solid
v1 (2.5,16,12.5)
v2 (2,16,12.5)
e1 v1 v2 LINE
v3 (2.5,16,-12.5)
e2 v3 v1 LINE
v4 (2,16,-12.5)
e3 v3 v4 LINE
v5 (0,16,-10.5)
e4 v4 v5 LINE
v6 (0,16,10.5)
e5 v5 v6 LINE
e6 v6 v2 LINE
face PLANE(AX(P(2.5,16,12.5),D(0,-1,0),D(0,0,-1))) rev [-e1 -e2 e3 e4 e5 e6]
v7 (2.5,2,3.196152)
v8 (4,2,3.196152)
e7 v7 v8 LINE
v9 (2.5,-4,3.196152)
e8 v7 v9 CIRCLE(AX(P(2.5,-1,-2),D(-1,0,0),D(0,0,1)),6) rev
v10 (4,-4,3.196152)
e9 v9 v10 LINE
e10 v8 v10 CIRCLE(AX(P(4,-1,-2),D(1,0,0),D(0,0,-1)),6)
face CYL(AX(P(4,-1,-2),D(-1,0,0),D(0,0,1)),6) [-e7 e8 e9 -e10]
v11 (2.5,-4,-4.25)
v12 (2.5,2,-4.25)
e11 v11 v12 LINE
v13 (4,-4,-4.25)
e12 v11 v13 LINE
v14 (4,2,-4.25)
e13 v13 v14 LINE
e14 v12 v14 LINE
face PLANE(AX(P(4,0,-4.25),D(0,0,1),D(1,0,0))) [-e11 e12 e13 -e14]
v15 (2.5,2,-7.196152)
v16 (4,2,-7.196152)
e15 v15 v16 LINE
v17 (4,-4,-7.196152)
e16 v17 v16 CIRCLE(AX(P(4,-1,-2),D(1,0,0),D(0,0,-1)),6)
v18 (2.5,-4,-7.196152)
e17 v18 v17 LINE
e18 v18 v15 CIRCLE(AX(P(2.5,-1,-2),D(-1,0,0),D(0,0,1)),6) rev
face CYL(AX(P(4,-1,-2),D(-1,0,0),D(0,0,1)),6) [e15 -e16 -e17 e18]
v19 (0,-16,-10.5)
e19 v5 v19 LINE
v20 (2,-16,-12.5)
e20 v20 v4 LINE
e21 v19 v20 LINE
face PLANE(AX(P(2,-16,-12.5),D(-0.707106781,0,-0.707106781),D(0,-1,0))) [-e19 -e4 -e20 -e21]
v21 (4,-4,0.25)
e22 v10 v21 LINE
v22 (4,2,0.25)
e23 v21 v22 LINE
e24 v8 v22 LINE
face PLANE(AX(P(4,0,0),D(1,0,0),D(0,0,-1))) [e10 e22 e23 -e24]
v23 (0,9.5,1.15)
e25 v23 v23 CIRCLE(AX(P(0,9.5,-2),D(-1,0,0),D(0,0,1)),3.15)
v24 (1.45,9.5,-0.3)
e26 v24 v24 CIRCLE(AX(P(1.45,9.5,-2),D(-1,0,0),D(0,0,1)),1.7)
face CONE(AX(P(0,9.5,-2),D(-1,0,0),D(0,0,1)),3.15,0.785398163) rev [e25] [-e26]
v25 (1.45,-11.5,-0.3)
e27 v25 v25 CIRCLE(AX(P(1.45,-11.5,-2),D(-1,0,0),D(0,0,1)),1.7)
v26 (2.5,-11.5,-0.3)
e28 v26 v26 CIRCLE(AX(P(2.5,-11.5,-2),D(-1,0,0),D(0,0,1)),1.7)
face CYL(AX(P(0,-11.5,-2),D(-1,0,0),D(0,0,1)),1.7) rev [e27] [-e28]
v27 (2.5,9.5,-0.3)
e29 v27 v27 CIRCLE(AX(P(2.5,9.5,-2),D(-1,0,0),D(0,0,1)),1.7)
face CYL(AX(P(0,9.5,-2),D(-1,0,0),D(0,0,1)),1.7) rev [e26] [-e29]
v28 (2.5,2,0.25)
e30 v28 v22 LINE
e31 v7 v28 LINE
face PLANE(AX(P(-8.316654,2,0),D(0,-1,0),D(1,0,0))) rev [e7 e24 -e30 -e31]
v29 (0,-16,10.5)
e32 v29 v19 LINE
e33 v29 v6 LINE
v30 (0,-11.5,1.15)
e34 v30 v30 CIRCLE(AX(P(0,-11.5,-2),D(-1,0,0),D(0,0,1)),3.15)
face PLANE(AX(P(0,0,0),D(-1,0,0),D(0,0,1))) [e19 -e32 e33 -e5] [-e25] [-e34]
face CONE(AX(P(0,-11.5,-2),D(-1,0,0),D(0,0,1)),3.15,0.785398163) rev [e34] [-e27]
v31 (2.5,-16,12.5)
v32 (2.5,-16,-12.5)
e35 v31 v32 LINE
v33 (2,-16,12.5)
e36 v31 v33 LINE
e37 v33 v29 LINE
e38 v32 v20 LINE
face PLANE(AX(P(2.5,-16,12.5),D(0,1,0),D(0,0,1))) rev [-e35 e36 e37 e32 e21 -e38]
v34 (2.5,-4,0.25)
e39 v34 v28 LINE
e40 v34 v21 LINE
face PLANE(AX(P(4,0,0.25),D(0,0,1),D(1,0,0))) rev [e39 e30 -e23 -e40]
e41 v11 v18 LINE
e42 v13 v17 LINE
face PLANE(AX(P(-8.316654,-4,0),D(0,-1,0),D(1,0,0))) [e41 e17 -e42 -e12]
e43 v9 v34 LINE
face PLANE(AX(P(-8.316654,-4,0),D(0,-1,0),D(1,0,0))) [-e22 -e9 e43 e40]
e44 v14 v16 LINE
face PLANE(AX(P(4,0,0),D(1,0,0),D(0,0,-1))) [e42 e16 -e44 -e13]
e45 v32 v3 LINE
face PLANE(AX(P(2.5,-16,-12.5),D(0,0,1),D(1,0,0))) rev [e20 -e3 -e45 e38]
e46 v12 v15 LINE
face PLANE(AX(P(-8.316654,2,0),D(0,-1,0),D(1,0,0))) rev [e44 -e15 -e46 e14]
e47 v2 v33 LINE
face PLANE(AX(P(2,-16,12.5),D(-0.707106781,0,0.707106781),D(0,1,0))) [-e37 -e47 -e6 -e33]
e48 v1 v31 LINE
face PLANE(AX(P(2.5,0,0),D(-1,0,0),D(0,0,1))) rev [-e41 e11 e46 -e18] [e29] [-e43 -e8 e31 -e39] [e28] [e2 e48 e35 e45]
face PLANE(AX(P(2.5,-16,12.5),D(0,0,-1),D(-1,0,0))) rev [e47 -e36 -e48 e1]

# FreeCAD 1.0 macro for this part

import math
import FreeCAD as App
import Part
import Sketcher
Q = App.Units.Quantity


def edges_at(feature, points):
    """Names of the edges that pass closest to the given points."""
    edges = feature.Shape.Edges
    near = lambda p: min(range(len(edges)), key=lambda i: edges[i].distToShape(Part.Vertex(*p))[0])
    return sorted({f"Edge{near(p) + 1}" for p in points})


def add_polygon(sketch, points):
    """Adds a closed chain of lines whose ends are joined by coincident constraints."""
    first, n = sketch.GeometryCount, len(points)
    for a, b in zip(points, points[1:] + points[:1]):
        sketch.addGeometry(Part.LineSegment(App.Vector(*a, 0), App.Vector(*b, 0)), False)
    for i in range(n):
        sketch.addConstraint(Sketcher.Constraint("Coincident", first + i, 2, first + (i + 1) % n, 1))

doc = App.newDocument("Part")
body = doc.addObject("PartDesign::Body", "Body")

# Sketch on YZ plane
sketch1 = doc.addObject("Sketcher::SketchObject", "Sketch")
body.addObject(sketch1)
sketch1.AttachmentSupport = (doc.YZ_Plane, [""])
sketch1.MapMode = "FlatFace"
add_polygon(sketch1, [(16, 12), (-16, 12), (-16, -12), (16, -12)])  # lines 0-3
sketch1.addConstraint(Sketcher.Constraint("Horizontal", 0))
sketch1.addConstraint(Sketcher.Constraint("Vertical", 1))
sketch1.addConstraint(Sketcher.Constraint("Horizontal", 2))
sketch1.addConstraint(Sketcher.Constraint("Vertical", 3))
sketch1.addConstraint(Sketcher.Constraint("Symmetric", 0, 2, 2, 2, -1, 1))
sketch1.addConstraint(Sketcher.Constraint("DistanceX", 0, 2, 0, 1, Q("32 mm")))
sketch1.addConstraint(Sketcher.Constraint("DistanceY", 1, 2, 1, 1, Q("25 mm")))
pad1 = doc.addObject("PartDesign::Pad", "Pad")
body.addObject(pad1)
pad1.Profile = sketch1
pad1.Length = 2.5
doc.recompute()

chamfer = doc.addObject("PartDesign::Chamfer", "Chamfer")
body.addObject(chamfer)
chamfer.Base = (pad1, edges_at(pad1, [(0, 0, 12.5), (0, 0, -12.5)]))
chamfer.Size = 2

# Sketch on XZ plane
sketch2 = doc.addObject("Sketcher::SketchObject", "Sketch001")
body.addObject(sketch2)
sketch2.AttachmentSupport = (doc.XZ_Plane, [""])
sketch2.MapMode = "FlatFace"
sketch2.AttachmentOffset = App.Placement(App.Vector(0, 0, 11.5), App.Rotation())
add_polygon(sketch2, [(2.5, -2), (0, -2), (0, 1.1), (1.4, -0.3), (2.5, -0.3)])  # lines 0-4
sketch2.addGeometry(Part.LineSegment(App.Vector(0, -2, 0), App.Vector(2.5, -2, 0)), True)  # axis
sketch2.addConstraint(Sketcher.Constraint("Horizontal", 0))
sketch2.addConstraint(Sketcher.Constraint("Vertical", 1))
sketch2.addConstraint(Sketcher.Constraint("Horizontal", 3))
sketch2.addConstraint(Sketcher.Constraint("Vertical", 4))
sketch2.addConstraint(Sketcher.Constraint("Horizontal", 5))
sketch2.addConstraint(Sketcher.Constraint("Coincident", 5, 1, 0, 2))
sketch2.addConstraint(Sketcher.Constraint("PointOnObject", 0, 2, -2))
sketch2.addConstraint(Sketcher.Constraint("Vertical", 3, 2, 5, 2))
sketch2.addConstraint(Sketcher.Constraint("Angle", 2, Q("-45 deg")))
sketch2.addConstraint(Sketcher.Constraint("DistanceX", 0, 2, 0, 1, Q("2.5 mm")))
sketch2.addConstraint(Sketcher.Constraint("DistanceY", 4, 2, 4, 1, Q("1.7 mm")))
sketch2.addConstraint(Sketcher.Constraint("DistanceY", 0, 2, -1, 1, Q("2 mm")))
sketch2.addConstraint(Sketcher.Constraint("DistanceX", 3, 1, 3, 2, Q("1.05 mm")))
groove = doc.addObject("PartDesign::Groove", "Groove")
body.addObject(groove)
groove.Profile = sketch2
groove.ReferenceAxis = (sketch2, ["Axis0"])
groove.Angle = 360
doc.recompute()

linearpattern = doc.addObject("PartDesign::LinearPattern", "LinearPattern")
body.addObject(linearpattern)
linearpattern.Originals = [groove]
linearpattern.Direction = (doc.Y_Axis, [""])
linearpattern.Mode = "offset"
linearpattern.Offset = 21
linearpattern.Occurrences = 2
body.Tip = linearpattern

# Sketch on YZ plane
sketch3 = doc.addObject("Sketcher::SketchObject", "Sketch002")
body.addObject(sketch3)
sketch3.AttachmentSupport = (doc.YZ_Plane, [""])
sketch3.MapMode = "FlatFace"
sketch3.AttachmentOffset = App.Placement(App.Vector(0, 0, 2.5), App.Rotation())
sketch3.addGeometry(Part.Circle(App.Vector(-1, -2, 0), App.Vector(0, 0, 1), 6), False)
sketch3.addGeometry(Part.ArcOfCircle(Part.Circle(App.Vector(-1, -2, 0), App.Vector(0, 0, 1), 3.5), math.radians(-40), math.radians(40)), False)
sketch3.addGeometry(Part.LineSegment(App.Vector(1.7, -4.2, 0), App.Vector(-3.7, -4.2, 0)), False)
sketch3.addGeometry(Part.ArcOfCircle(Part.Circle(App.Vector(-1, -2, 0), App.Vector(0, 0, 1), 3.5), math.radians(140), math.radians(220)), False)
sketch3.addGeometry(Part.LineSegment(App.Vector(-3.7, 0.2, 0), App.Vector(1.7, 0.2, 0)), False)
sketch3.addConstraint(Sketcher.Constraint("Coincident", 1, 1, 2, 1))
sketch3.addConstraint(Sketcher.Constraint("Coincident", 2, 2, 3, 2))
sketch3.addConstraint(Sketcher.Constraint("Coincident", 3, 1, 4, 1))
sketch3.addConstraint(Sketcher.Constraint("Coincident", 4, 2, 1, 2))
sketch3.addConstraint(Sketcher.Constraint("Horizontal", 2))
sketch3.addConstraint(Sketcher.Constraint("Horizontal", 4))
sketch3.addConstraint(Sketcher.Constraint("Coincident", 1, 3, 0, 3))
sketch3.addConstraint(Sketcher.Constraint("Coincident", 3, 3, 0, 3))
sketch3.addConstraint(Sketcher.Constraint("Equal", 1, 3))
sketch3.addConstraint(Sketcher.Constraint("Vertical", 2, 2, 3, 1))
sketch3.addConstraint(Sketcher.Constraint("Diameter", 0, Q("12 mm")))
sketch3.addConstraint(Sketcher.Constraint("Radius", 1, Q("3.5 mm")))
sketch3.addConstraint(Sketcher.Constraint("DistanceX", 0, 3, -1, 1, Q("1 mm")))
sketch3.addConstraint(Sketcher.Constraint("DistanceY", 0, 3, -1, 1, Q("2 mm")))
sketch3.addConstraint(Sketcher.Constraint("DistanceY", 2, 2, 3, 1, Q("4.5 mm")))
pad2 = doc.addObject("PartDesign::Pad", "Pad001")
body.addObject(pad2)
pad2.Profile = sketch3
pad2.Length = 1.5

# Sketch on YZ plane
sketch4 = doc.addObject("Sketcher::SketchObject", "Sketch003")
body.addObject(sketch4)
sketch4.AttachmentSupport = (doc.YZ_Plane, [""])
sketch4.MapMode = "FlatFace"
sketch4.AttachmentOffset = App.Placement(App.Vector(0, 0, 4), App.Rotation())
add_polygon(sketch4, [(7, 0.2), (-9, 0.2), (-9, -4.2), (7, -4.2)])  # lines 0-3
sketch4.addConstraint(Sketcher.Constraint("Horizontal", 0))
sketch4.addConstraint(Sketcher.Constraint("Vertical", 1))
sketch4.addConstraint(Sketcher.Constraint("Horizontal", 2))
sketch4.addConstraint(Sketcher.Constraint("Vertical", 3))
sketch4.addConstraint(Sketcher.Constraint("DistanceX", 0, 2, 0, 1, Q("16 mm")))
sketch4.addConstraint(Sketcher.Constraint("DistanceY", 1, 2, 1, 1, Q("4.5 mm")))
sketch4.addConstraint(Sketcher.Constraint("DistanceX", 0, 2, -1, 1, Q("9 mm")))
sketch4.addConstraint(Sketcher.Constraint("DistanceY", -1, 1, 0, 2, Q("0.25 mm")))
pocket1 = doc.addObject("PartDesign::Pocket", "Pocket")
body.addObject(pocket1)
pocket1.Profile = sketch4
pocket1.Length = 1.5

# Sketch on YZ plane
sketch5 = doc.addObject("Sketcher::SketchObject", "Sketch004")
body.addObject(sketch5)
sketch5.AttachmentSupport = (doc.YZ_Plane, [""])
sketch5.MapMode = "FlatFace"
sketch5.AttachmentOffset = App.Placement(App.Vector(0, 0, 4), App.Rotation())
sketch5.addGeometry(Part.LineSegment(App.Vector(2, 3.2, 0), App.Vector(2, -7.2, 0)), False)
sketch5.addGeometry(Part.ArcOfCircle(Part.Circle(App.Vector(-1, -2, 0), App.Vector(0, 0, 1), 6), math.radians(-60), math.radians(-22)), False)
sketch5.addGeometry(Part.ArcOfCircle(Part.Circle(App.Vector(-1, -2, 0), App.Vector(0, 0, 1), 6), math.radians(-22), math.radians(60)), False)
sketch5.addGeometry(Part.ArcOfCircle(Part.Circle(App.Vector(-1, -2, 0), App.Vector(0, 0, 1), 6), math.radians(120), math.radians(202)), False)
sketch5.addGeometry(Part.ArcOfCircle(Part.Circle(App.Vector(-1, -2, 0), App.Vector(0, 0, 1), 6), math.radians(-158), math.radians(-120)), False)
sketch5.addGeometry(Part.LineSegment(App.Vector(-4, -7.2, 0), App.Vector(-4, 3.2, 0)), False)
sketch5.addConstraint(Sketcher.Constraint("Coincident", 0, 2, 1, 1))
sketch5.addConstraint(Sketcher.Constraint("Tangent", 1, 2, 2, 1))
sketch5.addConstraint(Sketcher.Constraint("Coincident", 2, 2, 0, 1))
sketch5.addConstraint(Sketcher.Constraint("Tangent", 3, 2, 4, 1))
sketch5.addConstraint(Sketcher.Constraint("Coincident", 4, 2, 5, 1))
sketch5.addConstraint(Sketcher.Constraint("Coincident", 5, 2, 3, 1))
sketch5.addConstraint(Sketcher.Constraint("Vertical", 0))
sketch5.addConstraint(Sketcher.Constraint("Vertical", 5))
sketch5.addConstraint(Sketcher.Constraint("Coincident", 3, 3, 1, 3))
sketch5.addConstraint(Sketcher.Constraint("Equal", 1, 2))
sketch5.addConstraint(Sketcher.Constraint("Equal", 2, 3))
sketch5.addConstraint(Sketcher.Constraint("Equal", 3, 4))
sketch5.addConstraint(Sketcher.Constraint("Horizontal", 1, 2, 3, 2))
sketch5.addConstraint(Sketcher.Constraint("Horizontal", 0, 2, 4, 2))
sketch5.addConstraint(Sketcher.Constraint("Radius", 1, Q("6 mm")))
sketch5.addConstraint(Sketcher.Constraint("DistanceX", 1, 3, -1, 1, Q("1 mm")))
sketch5.addConstraint(Sketcher.Constraint("DistanceY", 1, 3, -1, 1, Q("2 mm")))
sketch5.addConstraint(Sketcher.Constraint("DistanceX", -1, 1, 0, 2, Q("2 mm")))
sketch5.addConstraint(Sketcher.Constraint("DistanceY", 1, 2, -1, 1, Q("4.25 mm")))
pocket2 = doc.addObject("PartDesign::Pocket", "Pocket001")
body.addObject(pocket2)
pocket2.Profile = sketch5
pocket2.Length = 1.5

doc.recompute()
